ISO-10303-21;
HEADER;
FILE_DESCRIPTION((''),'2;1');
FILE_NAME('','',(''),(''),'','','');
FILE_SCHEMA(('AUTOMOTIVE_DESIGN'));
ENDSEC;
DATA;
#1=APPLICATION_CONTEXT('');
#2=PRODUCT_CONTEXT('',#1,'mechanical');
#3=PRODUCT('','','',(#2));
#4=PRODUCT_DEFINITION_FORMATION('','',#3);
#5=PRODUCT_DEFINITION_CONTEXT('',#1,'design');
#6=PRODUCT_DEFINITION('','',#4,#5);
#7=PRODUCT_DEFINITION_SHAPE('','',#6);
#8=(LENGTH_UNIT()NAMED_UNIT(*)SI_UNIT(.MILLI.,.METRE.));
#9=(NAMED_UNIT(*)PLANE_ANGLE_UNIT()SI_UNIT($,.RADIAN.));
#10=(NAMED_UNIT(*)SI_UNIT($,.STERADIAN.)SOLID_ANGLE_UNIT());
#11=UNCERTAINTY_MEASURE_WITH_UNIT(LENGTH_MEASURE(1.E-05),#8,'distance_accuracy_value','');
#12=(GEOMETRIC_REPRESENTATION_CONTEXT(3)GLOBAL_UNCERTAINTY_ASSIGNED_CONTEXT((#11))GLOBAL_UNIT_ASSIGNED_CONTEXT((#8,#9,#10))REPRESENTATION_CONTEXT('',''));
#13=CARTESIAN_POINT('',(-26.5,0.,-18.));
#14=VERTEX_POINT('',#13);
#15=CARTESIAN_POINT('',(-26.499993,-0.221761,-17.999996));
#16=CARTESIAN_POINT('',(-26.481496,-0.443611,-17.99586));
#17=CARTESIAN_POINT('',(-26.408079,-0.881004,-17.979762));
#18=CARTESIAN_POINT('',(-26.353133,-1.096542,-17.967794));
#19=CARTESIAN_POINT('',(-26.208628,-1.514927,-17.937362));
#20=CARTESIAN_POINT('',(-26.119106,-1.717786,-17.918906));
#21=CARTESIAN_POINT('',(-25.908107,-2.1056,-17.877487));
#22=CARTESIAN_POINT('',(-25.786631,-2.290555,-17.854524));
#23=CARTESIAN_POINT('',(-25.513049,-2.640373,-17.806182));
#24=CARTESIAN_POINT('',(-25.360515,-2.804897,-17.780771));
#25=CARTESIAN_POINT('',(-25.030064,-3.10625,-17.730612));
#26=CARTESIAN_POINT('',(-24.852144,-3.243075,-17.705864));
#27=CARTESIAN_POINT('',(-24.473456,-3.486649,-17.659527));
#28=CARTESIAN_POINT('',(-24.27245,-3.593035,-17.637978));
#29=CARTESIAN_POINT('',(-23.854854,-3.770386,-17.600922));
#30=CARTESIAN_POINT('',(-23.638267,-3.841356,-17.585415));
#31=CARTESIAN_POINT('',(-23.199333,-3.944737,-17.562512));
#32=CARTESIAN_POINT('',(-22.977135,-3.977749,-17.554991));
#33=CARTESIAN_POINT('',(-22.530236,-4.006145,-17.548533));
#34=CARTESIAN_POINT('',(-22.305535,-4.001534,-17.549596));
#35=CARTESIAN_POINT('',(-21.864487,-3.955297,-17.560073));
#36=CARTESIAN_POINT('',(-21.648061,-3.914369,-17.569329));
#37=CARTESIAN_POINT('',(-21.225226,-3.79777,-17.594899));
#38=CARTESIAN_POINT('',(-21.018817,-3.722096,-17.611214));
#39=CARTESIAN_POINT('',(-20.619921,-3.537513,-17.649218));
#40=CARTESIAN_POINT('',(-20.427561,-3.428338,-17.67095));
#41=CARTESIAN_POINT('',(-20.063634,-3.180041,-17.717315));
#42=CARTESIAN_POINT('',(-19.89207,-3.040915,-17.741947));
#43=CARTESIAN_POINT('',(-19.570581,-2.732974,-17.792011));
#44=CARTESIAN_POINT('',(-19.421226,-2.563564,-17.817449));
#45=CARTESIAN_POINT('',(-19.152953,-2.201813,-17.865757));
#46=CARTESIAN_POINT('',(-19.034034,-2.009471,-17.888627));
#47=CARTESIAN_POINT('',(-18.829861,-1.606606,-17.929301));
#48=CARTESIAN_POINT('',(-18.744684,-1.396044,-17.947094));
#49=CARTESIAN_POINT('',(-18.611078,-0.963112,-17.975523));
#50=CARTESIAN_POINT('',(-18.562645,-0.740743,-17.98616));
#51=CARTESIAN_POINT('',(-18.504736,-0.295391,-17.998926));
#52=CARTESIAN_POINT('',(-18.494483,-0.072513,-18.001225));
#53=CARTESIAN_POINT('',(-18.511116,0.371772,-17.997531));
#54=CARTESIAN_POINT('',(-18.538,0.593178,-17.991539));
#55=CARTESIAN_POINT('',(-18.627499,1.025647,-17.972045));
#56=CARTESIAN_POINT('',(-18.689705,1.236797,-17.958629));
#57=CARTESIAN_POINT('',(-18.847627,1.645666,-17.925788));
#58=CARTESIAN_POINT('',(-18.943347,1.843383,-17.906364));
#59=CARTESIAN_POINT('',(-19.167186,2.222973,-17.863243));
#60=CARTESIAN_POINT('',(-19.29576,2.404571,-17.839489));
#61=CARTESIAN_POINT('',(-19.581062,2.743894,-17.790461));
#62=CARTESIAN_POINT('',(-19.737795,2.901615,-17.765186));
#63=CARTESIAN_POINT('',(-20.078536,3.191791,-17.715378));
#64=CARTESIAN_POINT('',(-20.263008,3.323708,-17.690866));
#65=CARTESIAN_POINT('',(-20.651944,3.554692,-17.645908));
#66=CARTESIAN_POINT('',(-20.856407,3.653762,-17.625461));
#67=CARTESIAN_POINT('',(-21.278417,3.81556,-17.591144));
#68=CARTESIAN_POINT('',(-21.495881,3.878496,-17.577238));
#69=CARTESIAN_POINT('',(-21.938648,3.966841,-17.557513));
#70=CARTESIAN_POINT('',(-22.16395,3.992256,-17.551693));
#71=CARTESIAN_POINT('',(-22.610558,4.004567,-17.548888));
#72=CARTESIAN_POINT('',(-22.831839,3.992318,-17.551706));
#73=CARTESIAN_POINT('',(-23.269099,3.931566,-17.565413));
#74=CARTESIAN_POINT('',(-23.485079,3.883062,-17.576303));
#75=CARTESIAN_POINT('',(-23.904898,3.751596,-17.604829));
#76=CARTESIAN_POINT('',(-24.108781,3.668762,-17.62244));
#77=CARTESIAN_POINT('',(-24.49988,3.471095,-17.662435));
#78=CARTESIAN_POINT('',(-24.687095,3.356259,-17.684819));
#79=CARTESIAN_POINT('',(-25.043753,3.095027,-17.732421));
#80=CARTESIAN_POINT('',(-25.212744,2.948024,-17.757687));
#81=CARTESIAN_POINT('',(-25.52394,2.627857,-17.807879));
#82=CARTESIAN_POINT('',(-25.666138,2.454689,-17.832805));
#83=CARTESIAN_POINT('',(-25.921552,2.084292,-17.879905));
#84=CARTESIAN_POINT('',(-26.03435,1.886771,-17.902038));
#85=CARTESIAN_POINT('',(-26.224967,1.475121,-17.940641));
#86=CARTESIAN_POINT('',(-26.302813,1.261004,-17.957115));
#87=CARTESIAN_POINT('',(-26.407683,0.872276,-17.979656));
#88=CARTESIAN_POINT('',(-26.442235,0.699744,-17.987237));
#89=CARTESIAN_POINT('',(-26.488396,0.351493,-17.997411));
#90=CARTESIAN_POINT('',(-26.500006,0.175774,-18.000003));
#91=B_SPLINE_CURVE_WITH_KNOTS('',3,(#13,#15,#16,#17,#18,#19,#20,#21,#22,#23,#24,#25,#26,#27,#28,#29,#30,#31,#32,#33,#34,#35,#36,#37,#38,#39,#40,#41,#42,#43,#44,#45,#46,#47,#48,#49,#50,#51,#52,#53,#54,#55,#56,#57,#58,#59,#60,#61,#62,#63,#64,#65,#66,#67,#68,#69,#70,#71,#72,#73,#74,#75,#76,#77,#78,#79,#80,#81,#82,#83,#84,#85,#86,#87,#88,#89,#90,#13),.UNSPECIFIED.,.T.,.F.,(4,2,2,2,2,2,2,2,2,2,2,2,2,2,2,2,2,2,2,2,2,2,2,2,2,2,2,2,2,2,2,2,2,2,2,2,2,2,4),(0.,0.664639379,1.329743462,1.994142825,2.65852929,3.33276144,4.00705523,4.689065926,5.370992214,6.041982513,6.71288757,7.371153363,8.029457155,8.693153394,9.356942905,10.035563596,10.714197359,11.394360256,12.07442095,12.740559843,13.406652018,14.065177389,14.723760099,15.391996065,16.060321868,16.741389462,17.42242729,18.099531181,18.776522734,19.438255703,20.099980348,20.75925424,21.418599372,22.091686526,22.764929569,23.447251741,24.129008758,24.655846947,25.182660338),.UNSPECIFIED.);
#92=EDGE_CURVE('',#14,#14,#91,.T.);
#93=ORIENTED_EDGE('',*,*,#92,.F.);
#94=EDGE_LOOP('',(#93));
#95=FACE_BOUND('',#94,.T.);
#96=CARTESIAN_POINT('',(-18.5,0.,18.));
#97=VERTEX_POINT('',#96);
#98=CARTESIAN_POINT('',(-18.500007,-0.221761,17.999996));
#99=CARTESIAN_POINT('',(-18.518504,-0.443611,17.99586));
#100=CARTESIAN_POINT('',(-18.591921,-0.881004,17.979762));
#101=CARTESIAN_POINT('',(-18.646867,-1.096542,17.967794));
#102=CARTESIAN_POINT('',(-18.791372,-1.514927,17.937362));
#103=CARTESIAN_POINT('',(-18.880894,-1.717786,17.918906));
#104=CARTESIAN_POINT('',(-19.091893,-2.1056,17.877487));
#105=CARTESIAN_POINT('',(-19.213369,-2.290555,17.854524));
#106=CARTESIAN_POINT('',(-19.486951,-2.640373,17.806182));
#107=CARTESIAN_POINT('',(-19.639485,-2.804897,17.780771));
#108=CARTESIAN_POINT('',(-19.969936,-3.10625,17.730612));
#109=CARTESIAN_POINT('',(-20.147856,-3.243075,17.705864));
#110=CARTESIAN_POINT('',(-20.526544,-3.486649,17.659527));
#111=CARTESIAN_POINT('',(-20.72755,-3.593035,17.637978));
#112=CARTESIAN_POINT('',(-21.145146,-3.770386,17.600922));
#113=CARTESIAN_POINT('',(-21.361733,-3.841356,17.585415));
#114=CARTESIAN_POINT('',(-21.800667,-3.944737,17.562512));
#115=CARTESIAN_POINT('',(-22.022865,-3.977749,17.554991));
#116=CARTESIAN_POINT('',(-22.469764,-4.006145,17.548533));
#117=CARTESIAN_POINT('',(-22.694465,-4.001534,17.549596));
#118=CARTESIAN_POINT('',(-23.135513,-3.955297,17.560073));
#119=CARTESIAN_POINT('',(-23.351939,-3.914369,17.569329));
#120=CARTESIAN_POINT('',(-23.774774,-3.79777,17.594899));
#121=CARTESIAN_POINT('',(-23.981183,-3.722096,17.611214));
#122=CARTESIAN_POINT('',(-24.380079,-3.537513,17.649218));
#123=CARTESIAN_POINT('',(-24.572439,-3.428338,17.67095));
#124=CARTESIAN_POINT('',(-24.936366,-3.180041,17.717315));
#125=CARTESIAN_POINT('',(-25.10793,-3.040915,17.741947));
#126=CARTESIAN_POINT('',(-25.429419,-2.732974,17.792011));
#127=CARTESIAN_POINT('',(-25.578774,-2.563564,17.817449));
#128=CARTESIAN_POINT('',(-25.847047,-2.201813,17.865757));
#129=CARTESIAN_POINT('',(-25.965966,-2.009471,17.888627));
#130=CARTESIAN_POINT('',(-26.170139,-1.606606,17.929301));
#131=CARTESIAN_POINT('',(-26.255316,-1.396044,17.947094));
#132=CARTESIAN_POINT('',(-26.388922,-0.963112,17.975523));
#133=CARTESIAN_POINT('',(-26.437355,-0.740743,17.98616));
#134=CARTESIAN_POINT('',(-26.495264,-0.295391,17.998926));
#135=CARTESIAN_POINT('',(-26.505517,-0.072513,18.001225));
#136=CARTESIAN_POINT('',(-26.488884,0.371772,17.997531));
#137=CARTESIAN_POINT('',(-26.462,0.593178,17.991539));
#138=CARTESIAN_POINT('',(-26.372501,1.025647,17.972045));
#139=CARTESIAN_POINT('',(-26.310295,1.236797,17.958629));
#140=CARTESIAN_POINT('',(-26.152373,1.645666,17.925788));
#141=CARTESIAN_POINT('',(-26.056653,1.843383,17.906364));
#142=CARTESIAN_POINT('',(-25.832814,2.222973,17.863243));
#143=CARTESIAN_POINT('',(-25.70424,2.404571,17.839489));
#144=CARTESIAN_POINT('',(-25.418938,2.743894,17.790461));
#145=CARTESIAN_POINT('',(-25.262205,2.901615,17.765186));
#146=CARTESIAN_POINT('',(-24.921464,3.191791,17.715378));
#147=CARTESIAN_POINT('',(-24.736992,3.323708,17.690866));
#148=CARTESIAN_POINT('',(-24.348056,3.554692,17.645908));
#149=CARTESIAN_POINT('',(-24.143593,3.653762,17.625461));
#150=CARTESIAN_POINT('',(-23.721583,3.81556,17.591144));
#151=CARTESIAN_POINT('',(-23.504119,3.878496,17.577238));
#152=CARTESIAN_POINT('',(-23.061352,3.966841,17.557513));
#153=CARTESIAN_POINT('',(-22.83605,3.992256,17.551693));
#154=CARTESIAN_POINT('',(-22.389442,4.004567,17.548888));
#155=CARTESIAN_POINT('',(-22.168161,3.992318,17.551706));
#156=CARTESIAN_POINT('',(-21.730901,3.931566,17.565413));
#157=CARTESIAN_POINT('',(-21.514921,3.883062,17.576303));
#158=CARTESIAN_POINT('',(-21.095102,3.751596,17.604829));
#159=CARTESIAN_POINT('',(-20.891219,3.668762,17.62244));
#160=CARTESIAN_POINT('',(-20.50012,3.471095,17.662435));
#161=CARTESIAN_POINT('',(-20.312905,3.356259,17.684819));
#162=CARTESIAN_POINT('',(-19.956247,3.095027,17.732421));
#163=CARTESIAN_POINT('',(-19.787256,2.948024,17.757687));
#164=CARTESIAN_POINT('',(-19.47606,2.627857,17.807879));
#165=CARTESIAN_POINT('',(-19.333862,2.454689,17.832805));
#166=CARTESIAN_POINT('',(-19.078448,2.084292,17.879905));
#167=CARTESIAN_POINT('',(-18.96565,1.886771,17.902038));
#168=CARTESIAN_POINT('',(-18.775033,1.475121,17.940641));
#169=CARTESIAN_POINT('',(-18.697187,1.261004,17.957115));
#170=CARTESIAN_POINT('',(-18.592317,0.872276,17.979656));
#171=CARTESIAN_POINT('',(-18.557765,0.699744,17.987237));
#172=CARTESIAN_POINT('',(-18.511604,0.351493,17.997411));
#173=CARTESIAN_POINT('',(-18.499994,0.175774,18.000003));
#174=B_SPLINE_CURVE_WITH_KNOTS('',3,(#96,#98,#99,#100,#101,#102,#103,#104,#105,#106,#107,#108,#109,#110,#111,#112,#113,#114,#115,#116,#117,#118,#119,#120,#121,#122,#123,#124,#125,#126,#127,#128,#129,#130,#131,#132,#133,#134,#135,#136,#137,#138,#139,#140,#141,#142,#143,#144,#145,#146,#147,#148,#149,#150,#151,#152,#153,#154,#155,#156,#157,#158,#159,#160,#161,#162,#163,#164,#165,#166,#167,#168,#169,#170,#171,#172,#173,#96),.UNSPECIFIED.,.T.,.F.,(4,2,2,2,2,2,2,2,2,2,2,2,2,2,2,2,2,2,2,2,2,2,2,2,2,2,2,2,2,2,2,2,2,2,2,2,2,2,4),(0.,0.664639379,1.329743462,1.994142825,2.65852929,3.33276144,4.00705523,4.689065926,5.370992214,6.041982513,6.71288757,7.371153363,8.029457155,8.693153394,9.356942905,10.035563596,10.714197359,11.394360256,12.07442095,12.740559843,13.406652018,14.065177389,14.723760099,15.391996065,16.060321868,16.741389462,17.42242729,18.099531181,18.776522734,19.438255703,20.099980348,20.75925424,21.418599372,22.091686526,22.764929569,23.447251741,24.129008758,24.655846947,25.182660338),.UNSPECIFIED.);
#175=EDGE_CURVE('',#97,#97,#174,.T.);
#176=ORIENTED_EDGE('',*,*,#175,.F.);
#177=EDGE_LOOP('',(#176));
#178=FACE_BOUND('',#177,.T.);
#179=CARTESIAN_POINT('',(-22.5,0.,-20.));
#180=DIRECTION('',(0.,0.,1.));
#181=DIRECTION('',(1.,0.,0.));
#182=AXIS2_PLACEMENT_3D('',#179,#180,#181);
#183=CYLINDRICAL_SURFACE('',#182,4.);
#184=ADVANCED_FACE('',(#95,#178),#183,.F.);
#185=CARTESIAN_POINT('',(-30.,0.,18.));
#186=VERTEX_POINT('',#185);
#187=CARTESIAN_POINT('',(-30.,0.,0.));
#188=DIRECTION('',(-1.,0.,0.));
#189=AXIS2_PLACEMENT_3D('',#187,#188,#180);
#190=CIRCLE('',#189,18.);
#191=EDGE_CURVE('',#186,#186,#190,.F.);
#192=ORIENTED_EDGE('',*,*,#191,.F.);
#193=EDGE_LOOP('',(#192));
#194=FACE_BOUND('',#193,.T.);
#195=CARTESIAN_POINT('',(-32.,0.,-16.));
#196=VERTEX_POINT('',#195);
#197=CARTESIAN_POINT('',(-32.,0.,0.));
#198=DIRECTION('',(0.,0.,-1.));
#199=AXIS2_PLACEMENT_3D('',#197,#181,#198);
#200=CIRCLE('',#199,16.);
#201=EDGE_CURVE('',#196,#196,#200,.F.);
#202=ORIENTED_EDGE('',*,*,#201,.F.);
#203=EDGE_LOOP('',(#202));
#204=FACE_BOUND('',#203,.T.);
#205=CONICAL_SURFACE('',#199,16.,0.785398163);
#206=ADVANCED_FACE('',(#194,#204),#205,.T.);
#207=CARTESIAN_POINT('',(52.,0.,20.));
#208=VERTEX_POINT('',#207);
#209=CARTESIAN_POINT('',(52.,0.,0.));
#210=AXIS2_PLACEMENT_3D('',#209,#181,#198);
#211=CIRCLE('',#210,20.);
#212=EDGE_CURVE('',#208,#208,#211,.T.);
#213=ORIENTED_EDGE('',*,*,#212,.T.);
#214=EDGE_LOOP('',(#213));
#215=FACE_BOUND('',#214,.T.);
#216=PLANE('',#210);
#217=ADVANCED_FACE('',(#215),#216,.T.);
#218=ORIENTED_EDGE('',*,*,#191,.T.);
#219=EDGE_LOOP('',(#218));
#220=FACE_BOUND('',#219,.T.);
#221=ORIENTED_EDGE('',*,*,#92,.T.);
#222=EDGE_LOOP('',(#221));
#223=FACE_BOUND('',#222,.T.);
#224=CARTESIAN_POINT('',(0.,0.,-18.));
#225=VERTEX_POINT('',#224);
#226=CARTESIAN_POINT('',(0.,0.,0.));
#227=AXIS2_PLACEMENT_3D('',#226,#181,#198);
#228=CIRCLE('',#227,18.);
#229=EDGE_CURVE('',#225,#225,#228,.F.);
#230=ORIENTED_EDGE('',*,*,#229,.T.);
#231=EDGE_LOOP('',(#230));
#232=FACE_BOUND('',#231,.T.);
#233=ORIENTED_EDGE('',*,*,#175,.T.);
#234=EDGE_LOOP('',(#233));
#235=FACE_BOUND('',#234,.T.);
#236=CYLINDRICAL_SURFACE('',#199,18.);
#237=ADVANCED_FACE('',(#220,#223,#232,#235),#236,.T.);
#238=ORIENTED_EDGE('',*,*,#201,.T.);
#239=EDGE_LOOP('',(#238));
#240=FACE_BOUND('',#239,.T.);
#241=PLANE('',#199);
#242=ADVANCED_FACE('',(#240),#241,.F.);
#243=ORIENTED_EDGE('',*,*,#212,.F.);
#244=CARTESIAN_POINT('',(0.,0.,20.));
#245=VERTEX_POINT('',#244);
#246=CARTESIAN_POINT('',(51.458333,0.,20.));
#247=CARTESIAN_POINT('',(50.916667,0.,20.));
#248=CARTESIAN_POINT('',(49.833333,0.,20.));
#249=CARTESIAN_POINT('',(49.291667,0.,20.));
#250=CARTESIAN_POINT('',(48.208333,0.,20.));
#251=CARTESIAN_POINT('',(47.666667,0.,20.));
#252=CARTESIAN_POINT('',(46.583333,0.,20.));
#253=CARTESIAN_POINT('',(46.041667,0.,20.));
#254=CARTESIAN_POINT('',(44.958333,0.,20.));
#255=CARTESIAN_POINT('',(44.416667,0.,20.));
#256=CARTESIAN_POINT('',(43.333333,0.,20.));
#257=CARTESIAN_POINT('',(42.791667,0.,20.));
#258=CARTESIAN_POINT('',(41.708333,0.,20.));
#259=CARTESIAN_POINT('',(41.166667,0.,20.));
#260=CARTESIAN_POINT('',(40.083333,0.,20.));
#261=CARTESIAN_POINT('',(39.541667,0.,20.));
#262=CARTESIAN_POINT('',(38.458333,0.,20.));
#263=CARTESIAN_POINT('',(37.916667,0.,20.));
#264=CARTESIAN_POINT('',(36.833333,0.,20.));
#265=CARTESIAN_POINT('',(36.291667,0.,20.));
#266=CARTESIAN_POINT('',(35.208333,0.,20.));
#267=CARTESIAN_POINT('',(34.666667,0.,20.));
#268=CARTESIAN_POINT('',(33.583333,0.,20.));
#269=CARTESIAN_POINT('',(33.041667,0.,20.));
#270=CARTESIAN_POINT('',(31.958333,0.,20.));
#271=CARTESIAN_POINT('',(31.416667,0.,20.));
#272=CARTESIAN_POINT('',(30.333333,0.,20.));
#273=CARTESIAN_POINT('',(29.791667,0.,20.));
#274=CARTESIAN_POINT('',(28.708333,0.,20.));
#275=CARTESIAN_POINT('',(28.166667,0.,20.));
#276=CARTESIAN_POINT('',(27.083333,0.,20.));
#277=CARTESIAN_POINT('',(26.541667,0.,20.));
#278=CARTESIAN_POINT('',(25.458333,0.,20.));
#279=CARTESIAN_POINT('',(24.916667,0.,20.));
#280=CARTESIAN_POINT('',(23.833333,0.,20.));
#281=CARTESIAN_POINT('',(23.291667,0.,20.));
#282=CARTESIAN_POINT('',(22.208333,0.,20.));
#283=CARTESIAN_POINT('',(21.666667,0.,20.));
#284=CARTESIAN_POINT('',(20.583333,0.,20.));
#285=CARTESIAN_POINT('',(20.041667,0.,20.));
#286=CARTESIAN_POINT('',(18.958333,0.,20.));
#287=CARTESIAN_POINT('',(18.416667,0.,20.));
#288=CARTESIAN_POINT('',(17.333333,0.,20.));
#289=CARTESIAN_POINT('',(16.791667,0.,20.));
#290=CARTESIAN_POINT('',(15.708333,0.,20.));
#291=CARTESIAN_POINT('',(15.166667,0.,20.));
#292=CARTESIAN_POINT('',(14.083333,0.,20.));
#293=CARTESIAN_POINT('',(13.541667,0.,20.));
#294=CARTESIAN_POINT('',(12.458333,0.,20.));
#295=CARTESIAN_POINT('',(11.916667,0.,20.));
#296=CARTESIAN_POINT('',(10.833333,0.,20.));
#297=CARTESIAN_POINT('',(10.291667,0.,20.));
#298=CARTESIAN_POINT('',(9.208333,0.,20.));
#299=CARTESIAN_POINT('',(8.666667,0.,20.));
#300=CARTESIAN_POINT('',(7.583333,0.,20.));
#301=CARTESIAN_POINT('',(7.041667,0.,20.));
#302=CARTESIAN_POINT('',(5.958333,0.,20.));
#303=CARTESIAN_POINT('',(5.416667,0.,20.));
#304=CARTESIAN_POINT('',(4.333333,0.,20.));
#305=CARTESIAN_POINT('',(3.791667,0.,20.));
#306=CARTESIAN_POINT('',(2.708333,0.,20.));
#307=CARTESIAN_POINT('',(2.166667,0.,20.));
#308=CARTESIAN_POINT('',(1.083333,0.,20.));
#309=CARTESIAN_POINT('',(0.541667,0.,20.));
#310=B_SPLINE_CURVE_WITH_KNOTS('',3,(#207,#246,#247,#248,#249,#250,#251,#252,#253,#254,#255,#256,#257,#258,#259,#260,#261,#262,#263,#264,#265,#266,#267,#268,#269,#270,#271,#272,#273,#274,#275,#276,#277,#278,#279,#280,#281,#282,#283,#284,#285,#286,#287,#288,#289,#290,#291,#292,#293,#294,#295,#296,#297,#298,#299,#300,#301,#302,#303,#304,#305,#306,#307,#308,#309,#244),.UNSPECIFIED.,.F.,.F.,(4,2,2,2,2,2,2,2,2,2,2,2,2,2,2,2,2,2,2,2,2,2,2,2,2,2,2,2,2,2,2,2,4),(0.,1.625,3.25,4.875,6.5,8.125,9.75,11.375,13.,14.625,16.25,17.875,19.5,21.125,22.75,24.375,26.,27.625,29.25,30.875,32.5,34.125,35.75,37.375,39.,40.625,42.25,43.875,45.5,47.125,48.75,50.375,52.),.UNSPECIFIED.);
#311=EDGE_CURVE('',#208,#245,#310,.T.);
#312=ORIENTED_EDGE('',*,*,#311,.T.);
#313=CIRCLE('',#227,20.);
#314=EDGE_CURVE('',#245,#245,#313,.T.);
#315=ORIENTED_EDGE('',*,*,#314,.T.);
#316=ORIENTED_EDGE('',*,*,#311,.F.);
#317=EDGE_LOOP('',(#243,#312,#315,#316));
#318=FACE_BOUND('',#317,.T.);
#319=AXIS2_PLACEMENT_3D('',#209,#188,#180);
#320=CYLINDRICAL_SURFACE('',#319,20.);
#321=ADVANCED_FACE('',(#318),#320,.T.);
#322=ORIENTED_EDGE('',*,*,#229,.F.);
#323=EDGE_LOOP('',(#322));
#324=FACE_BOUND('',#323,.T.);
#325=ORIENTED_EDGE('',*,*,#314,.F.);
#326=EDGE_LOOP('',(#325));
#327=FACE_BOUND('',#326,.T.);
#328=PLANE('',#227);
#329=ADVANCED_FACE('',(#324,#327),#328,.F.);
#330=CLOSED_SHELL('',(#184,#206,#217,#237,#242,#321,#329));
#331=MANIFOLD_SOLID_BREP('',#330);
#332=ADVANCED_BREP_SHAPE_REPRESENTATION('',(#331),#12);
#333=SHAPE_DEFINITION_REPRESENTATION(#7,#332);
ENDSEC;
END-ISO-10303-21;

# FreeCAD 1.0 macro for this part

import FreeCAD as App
import Part
import Sketcher


def edges_at(feature, points):
    """Names of the edges that pass closest to the given points."""
    edges = feature.Shape.Edges
    near = lambda p: min(range(len(edges)), key=lambda i: edges[i].distToShape(Part.Vertex(*p))[0])
    return sorted({f"Edge{near(p) + 1}" for p in points})

doc = App.newDocument("Part")
body = doc.addObject("PartDesign::Body", "Body")

# Sketch on YZ plane
sketch1 = doc.addObject("Sketcher::SketchObject", "Sketch")
body.addObject(sketch1)
sketch1.AttachmentSupport = (doc.YZ_Plane, [""])
sketch1.MapMode = "FlatFace"
sketch1.addGeometry(Part.Circle(App.Vector(0, 0, 0), App.Vector(0, 0, 1), 20), False)
sketch1.addConstraint(Sketcher.Constraint("Coincident", 0, 3, -1, 1))
sketch1.addConstraint(Sketcher.Constraint("Diameter", 0, 40.0))
pad1 = doc.addObject("PartDesign::Pad", "Pad")
body.addObject(pad1)
pad1.Profile = sketch1
pad1.Length = 52

# Sketch on YZ plane
sketch2 = doc.addObject("Sketcher::SketchObject", "Sketch001")
body.addObject(sketch2)
sketch2.AttachmentSupport = (doc.YZ_Plane, [""])
sketch2.MapMode = "FlatFace"
sketch2.addGeometry(Part.Circle(App.Vector(0, 0, 0), App.Vector(0, 0, 1), 18), False)
sketch2.addConstraint(Sketcher.Constraint("Coincident", 0, 3, -1, 1))
sketch2.addConstraint(Sketcher.Constraint("Diameter", 0, 36.0))
pad2 = doc.addObject("PartDesign::Pad", "Pad001")
body.addObject(pad2)
pad2.Profile = sketch2
pad2.Length = 32
pad2.Reversed = True

# Sketch on XY plane
sketch3 = doc.addObject("Sketcher::SketchObject", "Sketch002")
body.addObject(sketch3)
sketch3.AttachmentSupport = (doc.XY_Plane, [""])
sketch3.MapMode = "FlatFace"
sketch3.addGeometry(Part.Circle(App.Vector(-22.5, 0, 0), App.Vector(0, 0, 1), 4), False)
sketch3.addConstraint(Sketcher.Constraint("PointOnObject", 0, 3, -1))
sketch3.addConstraint(Sketcher.Constraint("Diameter", 0, 8.0))
sketch3.addConstraint(Sketcher.Constraint("DistanceX", 0, 3, -1, 1, 22.5))
pocket1 = doc.addObject("PartDesign::Pocket", "Pocket")
body.addObject(pocket1)
pocket1.Profile = sketch3
pocket1.Type = "ThroughAll"
pocket1.Midplane = True
doc.recompute()

chamfer = doc.addObject("PartDesign::Chamfer", "Chamfer")
body.addObject(chamfer)
chamfer.Base = (pocket1, edges_at(pocket1, [(-32, 0, 18)]))
chamfer.Size = 2

# Sketch on YZ plane
sketch4 = doc.addObject("Sketcher::SketchObject", "Sketch003")
body.addObject(sketch4)
sketch4.AttachmentSupport = (doc.YZ_Plane, [""])
sketch4.MapMode = "FlatFace"
sketch4.AttachmentOffset = App.Placement(App.Vector(0, 0, -32), App.Rotation())
sketch4.addGeometry(Part.Circle(App.Vector(0, 0, 0), App.Vector(0, 0, 1), 17), False)
sketch4.addConstraint(Sketcher.Constraint("Coincident", 0, 3, -1, 1))
sketch4.addConstraint(Sketcher.Constraint("Diameter", 0, 34.0))
pad3 = doc.addObject("PartDesign::Pad", "Pad002")
body.addObject(pad3)
pad3.Profile = sketch4
pad3.Length = 2
pad3.Reversed = True

# Sketch on YZ plane
sketch5 = doc.addObject("Sketcher::SketchObject", "Sketch004")
body.addObject(sketch5)
sketch5.AttachmentSupport = (doc.YZ_Plane, [""])
sketch5.MapMode = "FlatFace"
sketch5.AttachmentOffset = App.Placement(App.Vector(0, 0, -34), App.Rotation())
sketch5.addGeometry(Part.Circle(App.Vector(0, 0, 0), App.Vector(0, 0, 1), 18), False)
sketch5.addConstraint(Sketcher.Constraint("Coincident", 0, 3, -1, 1))
sketch5.addConstraint(Sketcher.Constraint("Diameter", 0, 36.0))
pad4 = doc.addObject("PartDesign::Pad", "Pad003")
body.addObject(pad4)
pad4.Profile = sketch5
pad4.Length = 4
pad4.Reversed = True
doc.recompute()

chamfer2 = doc.addObject("PartDesign::Chamfer", "Chamfer001")
body.addObject(chamfer2)
chamfer2.Base = (pad4, edges_at(pad4, [(-38, 0, 18)]))
chamfer2.Size = 2

# Sketch on YZ plane
sketch6 = doc.addObject("Sketcher::SketchObject", "Sketch005")
body.addObject(sketch6)
sketch6.AttachmentSupport = (doc.YZ_Plane, [""])
sketch6.MapMode = "FlatFace"
sketch6.AttachmentOffset = App.Placement(App.Vector(0, 0, -32), App.Rotation())
sketch6.addGeometry(Part.Circle(App.Vector(0, 0, 0), App.Vector(0, 0, 1), 24.071831), False)
sketch6.addConstraint(Sketcher.Constraint("Coincident", 0, 3, -1, 1))
sketch6.addConstraint(Sketcher.Constraint("Diameter", 0, 48.143663))
pocket2 = doc.addObject("PartDesign::Pocket", "Pocket001")
body.addObject(pocket2)
pocket2.Profile = sketch6
pocket2.Length = 10

doc.recompute()
